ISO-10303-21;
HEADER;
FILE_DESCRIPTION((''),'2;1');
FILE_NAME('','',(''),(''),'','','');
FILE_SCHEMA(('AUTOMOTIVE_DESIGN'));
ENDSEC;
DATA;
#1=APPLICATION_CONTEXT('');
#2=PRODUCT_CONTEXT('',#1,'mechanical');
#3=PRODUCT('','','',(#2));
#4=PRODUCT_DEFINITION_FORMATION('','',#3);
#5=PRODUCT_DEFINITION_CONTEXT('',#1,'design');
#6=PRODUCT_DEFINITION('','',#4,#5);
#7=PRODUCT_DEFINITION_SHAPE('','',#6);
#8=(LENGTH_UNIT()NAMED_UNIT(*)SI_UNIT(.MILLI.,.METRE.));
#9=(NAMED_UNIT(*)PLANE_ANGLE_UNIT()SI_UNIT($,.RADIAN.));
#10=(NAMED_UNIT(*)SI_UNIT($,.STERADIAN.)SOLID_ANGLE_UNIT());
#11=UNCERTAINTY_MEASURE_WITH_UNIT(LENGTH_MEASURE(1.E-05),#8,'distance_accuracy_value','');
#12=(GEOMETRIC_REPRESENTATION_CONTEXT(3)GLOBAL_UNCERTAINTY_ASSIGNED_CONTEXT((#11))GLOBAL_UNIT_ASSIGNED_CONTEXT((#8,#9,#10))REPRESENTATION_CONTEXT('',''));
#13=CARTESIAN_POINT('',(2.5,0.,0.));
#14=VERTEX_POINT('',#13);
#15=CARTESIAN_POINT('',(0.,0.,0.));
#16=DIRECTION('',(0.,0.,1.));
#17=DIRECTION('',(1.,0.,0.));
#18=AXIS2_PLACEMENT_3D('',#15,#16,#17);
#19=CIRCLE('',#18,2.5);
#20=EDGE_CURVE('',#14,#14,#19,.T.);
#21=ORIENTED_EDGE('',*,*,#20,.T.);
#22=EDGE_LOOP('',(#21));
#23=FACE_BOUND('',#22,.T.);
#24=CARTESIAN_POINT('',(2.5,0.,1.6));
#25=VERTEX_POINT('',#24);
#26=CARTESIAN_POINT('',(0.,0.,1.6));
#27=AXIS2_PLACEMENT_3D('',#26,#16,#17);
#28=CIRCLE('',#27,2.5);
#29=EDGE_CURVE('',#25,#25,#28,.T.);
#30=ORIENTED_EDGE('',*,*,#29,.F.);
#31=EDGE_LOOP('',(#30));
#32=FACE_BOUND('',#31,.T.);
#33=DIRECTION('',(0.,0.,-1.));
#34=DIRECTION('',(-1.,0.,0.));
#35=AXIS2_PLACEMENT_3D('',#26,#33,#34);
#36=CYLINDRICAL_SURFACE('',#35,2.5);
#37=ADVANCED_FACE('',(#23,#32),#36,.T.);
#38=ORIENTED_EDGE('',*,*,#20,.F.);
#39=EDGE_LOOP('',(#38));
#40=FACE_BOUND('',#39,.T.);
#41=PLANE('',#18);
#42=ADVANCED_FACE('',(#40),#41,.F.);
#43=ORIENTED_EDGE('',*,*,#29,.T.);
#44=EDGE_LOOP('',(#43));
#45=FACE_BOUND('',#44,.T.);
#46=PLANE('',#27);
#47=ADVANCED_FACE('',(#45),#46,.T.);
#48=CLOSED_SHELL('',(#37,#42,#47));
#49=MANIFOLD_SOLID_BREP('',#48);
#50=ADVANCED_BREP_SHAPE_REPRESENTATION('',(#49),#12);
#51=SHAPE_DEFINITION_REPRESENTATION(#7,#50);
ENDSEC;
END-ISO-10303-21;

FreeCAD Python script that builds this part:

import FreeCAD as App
import Part
import Sketcher

doc = App.newDocument("Part")
body = doc.addObject("PartDesign::Body", "Body")

sketch1 = body.newObject("Sketcher::SketchObject", "Sketch")
sketch1.AttachmentSupport = (doc.getObject("XY_Plane"), [""])
sketch1.MapMode = "FlatFace"
sketch1.addGeometry(Part.Circle(App.Vector(0, 0, 0), App.Vector(0, 0, 1), 2.5), False)
sketch1.addConstraint([
    Sketcher.Constraint("Coincident", 0, 3, -1, 1),
    Sketcher.Constraint("Diameter", 0, 5.0),
])
pad1 = body.newObject("PartDesign::Pad", "Pad")
pad1.Profile = sketch1
pad1.Length = 1.6

doc.recompute()
